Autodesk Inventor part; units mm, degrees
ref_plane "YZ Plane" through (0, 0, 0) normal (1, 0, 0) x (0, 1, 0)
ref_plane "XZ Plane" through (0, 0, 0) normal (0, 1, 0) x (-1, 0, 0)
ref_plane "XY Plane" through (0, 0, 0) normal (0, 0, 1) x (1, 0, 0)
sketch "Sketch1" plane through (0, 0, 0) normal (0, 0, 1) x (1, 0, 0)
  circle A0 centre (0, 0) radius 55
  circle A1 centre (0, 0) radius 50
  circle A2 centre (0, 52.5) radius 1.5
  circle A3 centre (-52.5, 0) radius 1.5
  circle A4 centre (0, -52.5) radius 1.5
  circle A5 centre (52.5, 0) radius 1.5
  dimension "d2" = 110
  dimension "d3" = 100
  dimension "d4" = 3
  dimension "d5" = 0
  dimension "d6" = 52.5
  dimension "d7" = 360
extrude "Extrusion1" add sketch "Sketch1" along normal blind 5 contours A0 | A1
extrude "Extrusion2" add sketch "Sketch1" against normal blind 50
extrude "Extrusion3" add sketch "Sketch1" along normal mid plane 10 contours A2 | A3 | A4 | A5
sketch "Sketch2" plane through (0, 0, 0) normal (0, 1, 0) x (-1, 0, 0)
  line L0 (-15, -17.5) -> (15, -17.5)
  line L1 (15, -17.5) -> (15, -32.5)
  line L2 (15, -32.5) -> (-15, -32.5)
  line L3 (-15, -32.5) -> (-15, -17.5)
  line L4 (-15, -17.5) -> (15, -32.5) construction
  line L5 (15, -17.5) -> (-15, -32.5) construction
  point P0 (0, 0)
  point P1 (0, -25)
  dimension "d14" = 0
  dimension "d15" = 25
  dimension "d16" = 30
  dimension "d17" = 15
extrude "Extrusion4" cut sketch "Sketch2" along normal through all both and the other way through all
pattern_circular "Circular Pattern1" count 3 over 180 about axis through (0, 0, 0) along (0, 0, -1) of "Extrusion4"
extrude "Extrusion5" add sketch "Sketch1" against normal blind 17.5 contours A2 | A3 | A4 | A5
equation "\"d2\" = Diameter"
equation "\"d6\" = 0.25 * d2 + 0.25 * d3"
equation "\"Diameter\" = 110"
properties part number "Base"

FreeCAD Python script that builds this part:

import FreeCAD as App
import Part
import Sketcher

V = App.Vector


def add_polygon(sketch, points):
    """Adds a closed chain of lines whose ends are joined by coincident constraints."""
    first, n = sketch.GeometryCount, len(points)
    for a, b in zip(points, points[1:] + points[:1]):
        sketch.addGeometry(Part.LineSegment(App.Vector(*a, 0), App.Vector(*b, 0)), False)
    for i in range(n):
        sketch.addConstraint(Sketcher.Constraint("Coincident", first + i, 2, first + (i + 1) % n, 1))

doc = App.newDocument("Part")
body = doc.addObject("PartDesign::Body", "Body")

# Sketch on XY plane
sketch1 = doc.addObject("Sketcher::SketchObject", "Sketch")
body.addObject(sketch1)
sketch1.AttachmentSupport = (doc.XY_Plane, [""])
sketch1.MapMode = "FlatFace"
sketch1.addGeometry([
    Part.Circle(V(0, 0, 0), V(0, 0, 1), 55),  # 0
    Part.Circle(V(0, -52.5, 0), V(0, 0, 1), 1.5),  # 1
    Part.Circle(V(-52.5, 0, 0), V(0, 0, 1), 1.5),  # 2
    Part.Circle(V(52.5, 0, 0), V(0, 0, 1), 1.5),  # 3
    Part.Circle(V(0, 52.5, 0), V(0, 0, 1), 1.5),  # 4
], False)
sketch1.addConstraint([
    Sketcher.Constraint("Coincident", 0, 3, -1, 1),
    Sketcher.Constraint("Equal", 1, 2),
    Sketcher.Constraint("Equal", 2, 3),
    Sketcher.Constraint("Equal", 3, 4),
    Sketcher.Constraint("Symmetric", 2, 3, 3, 3, -1, 1),
    Sketcher.Constraint("Symmetric", 1, 3, 4, 3, -1, 1),
    Sketcher.Constraint("PointOnObject", 1, 3, -2),
    Sketcher.Constraint("PointOnObject", 2, 3, -1),
    Sketcher.Constraint("Diameter", 0, 110.0),
    Sketcher.Constraint("Diameter", 1, 3.0),
    Sketcher.Constraint("DistanceY", 1, 3, -1, 1, 52.5),
    Sketcher.Constraint("DistanceX", 2, 3, -1, 1, 52.5),
])
pad1 = doc.addObject("PartDesign::Pad", "Pad")
body.addObject(pad1)
pad1.Profile = sketch1
pad1.Length = 5

# Sketch on XY plane
sketch2 = doc.addObject("Sketcher::SketchObject", "Sketch001")
body.addObject(sketch2)
sketch2.AttachmentSupport = (doc.XY_Plane, [""])
sketch2.MapMode = "FlatFace"
sketch2.addGeometry([
    Part.Circle(V(0, 0, 0), V(0, 0, 1), 55),  # 0
    Part.Circle(V(0, -52.5, 0), V(0, 0, 1), 1.5),  # 1
    Part.Circle(V(-52.5, 0, 0), V(0, 0, 1), 1.5),  # 2
    Part.Circle(V(0, 0, 0), V(0, 0, 1), 50),  # 3
    Part.Circle(V(52.5, 0, 0), V(0, 0, 1), 1.5),  # 4
    Part.Circle(V(0, 52.5, 0), V(0, 0, 1), 1.5),  # 5
], False)
sketch2.addConstraint([
    Sketcher.Constraint("Coincident", 0, 3, -1, 1),
    Sketcher.Constraint("Coincident", 3, 3, -1, 1),
    Sketcher.Constraint("Equal", 1, 2),
    Sketcher.Constraint("Equal", 2, 4),
    Sketcher.Constraint("Equal", 4, 5),
    Sketcher.Constraint("Symmetric", 2, 3, 4, 3, -1, 1),
    Sketcher.Constraint("Symmetric", 1, 3, 5, 3, -1, 1),
    Sketcher.Constraint("PointOnObject", 1, 3, -2),
    Sketcher.Constraint("PointOnObject", 2, 3, -1),
    Sketcher.Constraint("Diameter", 0, 110.0),
    Sketcher.Constraint("Diameter", 1, 3.0),
    Sketcher.Constraint("Diameter", 3, 100.0),
    Sketcher.Constraint("DistanceY", 1, 3, -1, 1, 52.5),
    Sketcher.Constraint("DistanceX", 2, 3, -1, 1, 52.5),
])
pad2 = doc.addObject("PartDesign::Pad", "Pad001")
body.addObject(pad2)
pad2.Profile = sketch2
pad2.Length = 50
pad2.Reversed = True

# Sketch on XY plane
sketch3 = doc.addObject("Sketcher::SketchObject", "Sketch002")
body.addObject(sketch3)
sketch3.AttachmentSupport = (doc.XY_Plane, [""])
sketch3.MapMode = "FlatFace"
sketch3.addGeometry([
    Part.Circle(V(0, 52.5, 0), V(0, 0, 1), 1.5),
    Part.Circle(V(-52.5, 0, 0), V(0, 0, 1), 1.5),
    Part.Circle(V(0, -52.5, 0), V(0, 0, 1), 1.5),
    Part.Circle(V(52.5, 0, 0), V(0, 0, 1), 1.5),
], False)
sketch3.addConstraint([
    Sketcher.Constraint("Equal", 0, 1),
    Sketcher.Constraint("Equal", 1, 2),
    Sketcher.Constraint("Equal", 2, 3),
    Sketcher.Constraint("Symmetric", 0, 3, 2, 3, -1, 1),
    Sketcher.Constraint("Symmetric", 1, 3, 3, 3, -1, 1),
    Sketcher.Constraint("PointOnObject", 0, 3, -2),
    Sketcher.Constraint("PointOnObject", 1, 3, -1),
    Sketcher.Constraint("Diameter", 0, 3.0),
    Sketcher.Constraint("DistanceY", -1, 1, 0, 3, 52.5),
    Sketcher.Constraint("DistanceX", 1, 3, -1, 1, 52.5),
])
pad3 = doc.addObject("PartDesign::Pad", "Pad002")
body.addObject(pad3)
pad3.Profile = sketch3
pad3.Length = 10
pad3.Midplane = True

# Sketch on XZ plane
sketch4 = doc.addObject("Sketcher::SketchObject", "Sketch003")
body.addObject(sketch4)
sketch4.AttachmentSupport = (doc.XZ_Plane, [""])
sketch4.MapMode = "FlatFace"
add_polygon(sketch4, [(-15, -18), (15, -18), (15, -32), (-15, -32)])  # lines 0-3
sketch4.addConstraint([
    Sketcher.Constraint("Horizontal", 0),
    Sketcher.Constraint("Vertical", 1),
    Sketcher.Constraint("Horizontal", 2),
    Sketcher.Constraint("Vertical", 3),
    Sketcher.Constraint("DistanceX", 0, 1, 0, 2, 30.0),
    Sketcher.Constraint("DistanceY", 1, 2, 1, 1, 15.0),
    Sketcher.Constraint("DistanceX", -1, 1, 0, 2, 15.0),
    Sketcher.Constraint("DistanceY", 0, 2, -1, 1, 17.5),
])
pocket1 = doc.addObject("PartDesign::Pocket", "Pocket")
body.addObject(pocket1)
pocket1.Profile = sketch4
pocket1.Type = "ThroughAll"
pocket1.Midplane = True
doc.recompute()

polarpattern = doc.addObject("PartDesign::PolarPattern", "PolarPattern")
body.addObject(polarpattern)
polarpattern.Originals = [pocket1]
polarpattern.Axis = (doc.Z_Axis, [""])
polarpattern.Angle = 180
polarpattern.Occurrences = 3
polarpattern.Reversed = True
body.Tip = polarpattern

# Sketch on XY plane
sketch5 = doc.addObject("Sketcher::SketchObject", "Sketch004")
body.addObject(sketch5)
sketch5.AttachmentSupport = (doc.XY_Plane, [""])
sketch5.MapMode = "FlatFace"
sketch5.addGeometry([
    Part.Circle(V(0, 52.5, 0), V(0, 0, 1), 1.5),
    Part.Circle(V(-52.5, 0, 0), V(0, 0, 1), 1.5),
    Part.Circle(V(0, -52.5, 0), V(0, 0, 1), 1.5),
    Part.Circle(V(52.5, 0, 0), V(0, 0, 1), 1.5),
], False)
sketch5.addConstraint([
    Sketcher.Constraint("Equal", 0, 1),
    Sketcher.Constraint("Equal", 1, 2),
    Sketcher.Constraint("Equal", 2, 3),
    Sketcher.Constraint("Symmetric", 0, 3, 2, 3, -1, 1),
    Sketcher.Constraint("Symmetric", 1, 3, 3, 3, -1, 1),
    Sketcher.Constraint("PointOnObject", 0, 3, -2),
    Sketcher.Constraint("PointOnObject", 1, 3, -1),
    Sketcher.Constraint("Diameter", 0, 3.0),
    Sketcher.Constraint("DistanceY", -1, 1, 0, 3, 52.5),
    Sketcher.Constraint("DistanceX", 1, 3, -1, 1, 52.5),
])
pad4 = doc.addObject("PartDesign::Pad", "Pad003")
body.addObject(pad4)
pad4.Profile = sketch5
pad4.Length = 17.5
pad4.Reversed = True

doc.recompute()
